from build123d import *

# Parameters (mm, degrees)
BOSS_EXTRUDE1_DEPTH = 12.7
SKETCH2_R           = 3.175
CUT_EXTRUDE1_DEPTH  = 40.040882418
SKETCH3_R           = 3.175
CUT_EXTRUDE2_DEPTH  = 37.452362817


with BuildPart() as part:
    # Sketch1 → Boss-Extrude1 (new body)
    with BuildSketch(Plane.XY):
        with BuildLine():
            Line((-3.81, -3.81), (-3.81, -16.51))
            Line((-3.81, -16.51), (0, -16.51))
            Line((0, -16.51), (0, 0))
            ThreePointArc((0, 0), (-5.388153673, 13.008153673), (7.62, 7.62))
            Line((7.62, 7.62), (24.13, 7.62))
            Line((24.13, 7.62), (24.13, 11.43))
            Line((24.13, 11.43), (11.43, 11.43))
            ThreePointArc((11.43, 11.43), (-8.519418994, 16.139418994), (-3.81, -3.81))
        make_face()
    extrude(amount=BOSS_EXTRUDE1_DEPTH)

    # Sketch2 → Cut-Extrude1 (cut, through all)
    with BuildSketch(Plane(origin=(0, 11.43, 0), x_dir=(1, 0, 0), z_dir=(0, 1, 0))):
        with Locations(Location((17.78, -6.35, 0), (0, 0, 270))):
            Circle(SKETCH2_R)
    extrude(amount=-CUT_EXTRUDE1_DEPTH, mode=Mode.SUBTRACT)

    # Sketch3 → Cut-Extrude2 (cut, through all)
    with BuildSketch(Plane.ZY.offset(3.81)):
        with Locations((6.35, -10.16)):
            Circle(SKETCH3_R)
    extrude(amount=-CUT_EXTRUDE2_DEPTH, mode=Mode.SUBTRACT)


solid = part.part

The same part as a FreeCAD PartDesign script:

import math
import FreeCAD as App
import Part
import Sketcher
Q = App.Units.Quantity

doc = App.newDocument("Part")
params = doc.addObject("Spreadsheet::Sheet", "Params")
for row, (alias, value) in enumerate([
    ("sketch1_radius", "0.3 in"),
    ("sketch1_width", "0.5 in"),
    ("sketch1_width2", "0.15 in"),
    ("sketch1_width3", "0.65 in"),
    ("pad1_length", "0.5 in"),
    ("sketch2_diameter", "0.25 in"),
    ("sketch3_diameter", "0.25 in"),
], start=1):
    params.set(f"A{row}", alias)
    params.set(f"B{row}", "=" + value)
    params.setAlias(f"B{row}", alias)

body = doc.addObject("PartDesign::Body", "Body")

sketch1 = doc.addObject("Sketcher::SketchObject", "Sketch")
body.addObject(sketch1)
sketch1.AttachmentSupport = (doc.XY_Plane, [""])
sketch1.MapMode = "FlatFace"
sketch1.addGeometry([
    Part.LineSegment(App.Vector(-3.8, -3.8, 0), App.Vector(-3.8, -16.5, 0)),
    Part.LineSegment(App.Vector(-3.8, -16.5, 0), App.Vector(0, -16.5, 0)),
    Part.LineSegment(App.Vector(0, -16.5, 0), App.Vector(0, 0, 0)),
    Part.ArcOfCircle(Part.Circle(App.Vector(0, 7.6, 0), App.Vector(0, 0, 1), 7.6), math.radians(0), math.radians(270)),
    Part.LineSegment(App.Vector(7.6, 7.6, 0), App.Vector(24.1, 7.6, 0)),
    Part.LineSegment(App.Vector(24.1, 7.6, 0), App.Vector(24.1, 11.4, 0)),
    Part.LineSegment(App.Vector(24.1, 11.4, 0), App.Vector(11.4, 11.4, 0)),
    Part.ArcOfCircle(Part.Circle(App.Vector(0, 7.6, 0), App.Vector(0, 0, 1), 12), math.radians(18), math.radians(252)),
], False)
sketch1.addConstraint([
    Sketcher.Constraint("Coincident", 0, 2, 1, 1),
    Sketcher.Constraint("Coincident", 1, 2, 2, 1),
    Sketcher.Constraint("Coincident", 2, 2, 3, 2),
    Sketcher.Constraint("Coincident", 3, 1, 4, 1),
    Sketcher.Constraint("Coincident", 4, 2, 5, 1),
    Sketcher.Constraint("Coincident", 5, 2, 6, 1),
    Sketcher.Constraint("Coincident", 6, 2, 7, 1),
    Sketcher.Constraint("Coincident", 7, 2, 0, 1),
    Sketcher.Constraint("Vertical", 0),
    Sketcher.Constraint("Horizontal", 1),
    Sketcher.Constraint("Vertical", 2),
    Sketcher.Constraint("Horizontal", 4),
    Sketcher.Constraint("Vertical", 5),
    Sketcher.Constraint("Horizontal", 6),
    Sketcher.Constraint("Coincident", 2, 2, -1, 1),
    Sketcher.Constraint("Coincident", 7, 3, 3, 3),
    Sketcher.Constraint("PointOnObject", 3, 3, -2),
    Sketcher.Constraint("Horizontal", 7, 3, 3, 1),
    Sketcher.Constraint("Equal", 6, 0),
    Sketcher.Constraint("Equal", 4, 2),
    Sketcher.Constraint("Radius", 3, Q("0.3 in")),
    Sketcher.Constraint("DistanceX", 6, 2, 6, 1, Q("0.5 in")),
    Sketcher.Constraint("DistanceX", 1, 1, 1, 2, Q("0.15 in")),
    Sketcher.Constraint("DistanceX", 4, 1, 4, 2, Q("0.65 in")),
])
sketch1.setExpression("Constraints[20]", "Params.sketch1_radius")
sketch1.setExpression("Constraints[21]", "Params.sketch1_width")
sketch1.setExpression("Constraints[22]", "Params.sketch1_width2")
sketch1.setExpression("Constraints[23]", "Params.sketch1_width3")
pad1 = doc.addObject("PartDesign::Pad", "Pad")
body.addObject(pad1)
pad1.Profile = sketch1
pad1.setExpression("Length", "Params.pad1_length")

sketch2 = doc.addObject("Sketcher::SketchObject", "Sketch001")
body.addObject(sketch2)
sketch2.AttachmentSupport = (doc.XZ_Plane, [""])
sketch2.MapMode = "FlatFace"
sketch2.AttachmentOffset = App.Placement(App.Vector(0, 0, -0.45 * 25.4), App.Rotation())
sketch2.addGeometry(Part.Circle(App.Vector(17.8, 6.3, 0), App.Vector(0, 0, 1), 3.2), False)
sketch2.addConstraint([
    Sketcher.Constraint("Diameter", 0, Q("0.25 in")),
    Sketcher.Constraint("DistanceX", -1, 1, 0, 3, Q("0.7 in")),
    Sketcher.Constraint("DistanceY", -1, 1, 0, 3, Q("0.25 in")),
])
sketch2.setExpression("Constraints[0]", "Params.sketch2_diameter")
pocket1 = doc.addObject("PartDesign::Pocket", "Pocket")
body.addObject(pocket1)
pocket1.Profile = sketch2
pocket1.Type = "ThroughAll"
pocket1.Reversed = True

sketch3 = doc.addObject("Sketcher::SketchObject", "Sketch002")
body.addObject(sketch3)
sketch3.AttachmentSupport = (doc.YZ_Plane, [""])
sketch3.MapMode = "FlatFace"
sketch3.AttachmentOffset = App.Placement(App.Vector(0, 0, -0.15 * 25.4), App.Rotation())
sketch3.addGeometry(Part.Circle(App.Vector(-10.2, 6.3, 0), App.Vector(0, 0, 1), 3.2), False)
sketch3.addConstraint([
    Sketcher.Constraint("Diameter", 0, Q("0.25 in")),
    Sketcher.Constraint("DistanceX", 0, 3, -1, 1, Q("0.4 in")),
    Sketcher.Constraint("DistanceY", -1, 1, 0, 3, Q("0.25 in")),
])
sketch3.setExpression("Constraints[0]", "Params.sketch3_diameter")
pocket2 = doc.addObject("PartDesign::Pocket", "Pocket001")
body.addObject(pocket2)
pocket2.Profile = sketch3
pocket2.Type = "ThroughAll"
pocket2.Reversed = True

doc.recompute()
